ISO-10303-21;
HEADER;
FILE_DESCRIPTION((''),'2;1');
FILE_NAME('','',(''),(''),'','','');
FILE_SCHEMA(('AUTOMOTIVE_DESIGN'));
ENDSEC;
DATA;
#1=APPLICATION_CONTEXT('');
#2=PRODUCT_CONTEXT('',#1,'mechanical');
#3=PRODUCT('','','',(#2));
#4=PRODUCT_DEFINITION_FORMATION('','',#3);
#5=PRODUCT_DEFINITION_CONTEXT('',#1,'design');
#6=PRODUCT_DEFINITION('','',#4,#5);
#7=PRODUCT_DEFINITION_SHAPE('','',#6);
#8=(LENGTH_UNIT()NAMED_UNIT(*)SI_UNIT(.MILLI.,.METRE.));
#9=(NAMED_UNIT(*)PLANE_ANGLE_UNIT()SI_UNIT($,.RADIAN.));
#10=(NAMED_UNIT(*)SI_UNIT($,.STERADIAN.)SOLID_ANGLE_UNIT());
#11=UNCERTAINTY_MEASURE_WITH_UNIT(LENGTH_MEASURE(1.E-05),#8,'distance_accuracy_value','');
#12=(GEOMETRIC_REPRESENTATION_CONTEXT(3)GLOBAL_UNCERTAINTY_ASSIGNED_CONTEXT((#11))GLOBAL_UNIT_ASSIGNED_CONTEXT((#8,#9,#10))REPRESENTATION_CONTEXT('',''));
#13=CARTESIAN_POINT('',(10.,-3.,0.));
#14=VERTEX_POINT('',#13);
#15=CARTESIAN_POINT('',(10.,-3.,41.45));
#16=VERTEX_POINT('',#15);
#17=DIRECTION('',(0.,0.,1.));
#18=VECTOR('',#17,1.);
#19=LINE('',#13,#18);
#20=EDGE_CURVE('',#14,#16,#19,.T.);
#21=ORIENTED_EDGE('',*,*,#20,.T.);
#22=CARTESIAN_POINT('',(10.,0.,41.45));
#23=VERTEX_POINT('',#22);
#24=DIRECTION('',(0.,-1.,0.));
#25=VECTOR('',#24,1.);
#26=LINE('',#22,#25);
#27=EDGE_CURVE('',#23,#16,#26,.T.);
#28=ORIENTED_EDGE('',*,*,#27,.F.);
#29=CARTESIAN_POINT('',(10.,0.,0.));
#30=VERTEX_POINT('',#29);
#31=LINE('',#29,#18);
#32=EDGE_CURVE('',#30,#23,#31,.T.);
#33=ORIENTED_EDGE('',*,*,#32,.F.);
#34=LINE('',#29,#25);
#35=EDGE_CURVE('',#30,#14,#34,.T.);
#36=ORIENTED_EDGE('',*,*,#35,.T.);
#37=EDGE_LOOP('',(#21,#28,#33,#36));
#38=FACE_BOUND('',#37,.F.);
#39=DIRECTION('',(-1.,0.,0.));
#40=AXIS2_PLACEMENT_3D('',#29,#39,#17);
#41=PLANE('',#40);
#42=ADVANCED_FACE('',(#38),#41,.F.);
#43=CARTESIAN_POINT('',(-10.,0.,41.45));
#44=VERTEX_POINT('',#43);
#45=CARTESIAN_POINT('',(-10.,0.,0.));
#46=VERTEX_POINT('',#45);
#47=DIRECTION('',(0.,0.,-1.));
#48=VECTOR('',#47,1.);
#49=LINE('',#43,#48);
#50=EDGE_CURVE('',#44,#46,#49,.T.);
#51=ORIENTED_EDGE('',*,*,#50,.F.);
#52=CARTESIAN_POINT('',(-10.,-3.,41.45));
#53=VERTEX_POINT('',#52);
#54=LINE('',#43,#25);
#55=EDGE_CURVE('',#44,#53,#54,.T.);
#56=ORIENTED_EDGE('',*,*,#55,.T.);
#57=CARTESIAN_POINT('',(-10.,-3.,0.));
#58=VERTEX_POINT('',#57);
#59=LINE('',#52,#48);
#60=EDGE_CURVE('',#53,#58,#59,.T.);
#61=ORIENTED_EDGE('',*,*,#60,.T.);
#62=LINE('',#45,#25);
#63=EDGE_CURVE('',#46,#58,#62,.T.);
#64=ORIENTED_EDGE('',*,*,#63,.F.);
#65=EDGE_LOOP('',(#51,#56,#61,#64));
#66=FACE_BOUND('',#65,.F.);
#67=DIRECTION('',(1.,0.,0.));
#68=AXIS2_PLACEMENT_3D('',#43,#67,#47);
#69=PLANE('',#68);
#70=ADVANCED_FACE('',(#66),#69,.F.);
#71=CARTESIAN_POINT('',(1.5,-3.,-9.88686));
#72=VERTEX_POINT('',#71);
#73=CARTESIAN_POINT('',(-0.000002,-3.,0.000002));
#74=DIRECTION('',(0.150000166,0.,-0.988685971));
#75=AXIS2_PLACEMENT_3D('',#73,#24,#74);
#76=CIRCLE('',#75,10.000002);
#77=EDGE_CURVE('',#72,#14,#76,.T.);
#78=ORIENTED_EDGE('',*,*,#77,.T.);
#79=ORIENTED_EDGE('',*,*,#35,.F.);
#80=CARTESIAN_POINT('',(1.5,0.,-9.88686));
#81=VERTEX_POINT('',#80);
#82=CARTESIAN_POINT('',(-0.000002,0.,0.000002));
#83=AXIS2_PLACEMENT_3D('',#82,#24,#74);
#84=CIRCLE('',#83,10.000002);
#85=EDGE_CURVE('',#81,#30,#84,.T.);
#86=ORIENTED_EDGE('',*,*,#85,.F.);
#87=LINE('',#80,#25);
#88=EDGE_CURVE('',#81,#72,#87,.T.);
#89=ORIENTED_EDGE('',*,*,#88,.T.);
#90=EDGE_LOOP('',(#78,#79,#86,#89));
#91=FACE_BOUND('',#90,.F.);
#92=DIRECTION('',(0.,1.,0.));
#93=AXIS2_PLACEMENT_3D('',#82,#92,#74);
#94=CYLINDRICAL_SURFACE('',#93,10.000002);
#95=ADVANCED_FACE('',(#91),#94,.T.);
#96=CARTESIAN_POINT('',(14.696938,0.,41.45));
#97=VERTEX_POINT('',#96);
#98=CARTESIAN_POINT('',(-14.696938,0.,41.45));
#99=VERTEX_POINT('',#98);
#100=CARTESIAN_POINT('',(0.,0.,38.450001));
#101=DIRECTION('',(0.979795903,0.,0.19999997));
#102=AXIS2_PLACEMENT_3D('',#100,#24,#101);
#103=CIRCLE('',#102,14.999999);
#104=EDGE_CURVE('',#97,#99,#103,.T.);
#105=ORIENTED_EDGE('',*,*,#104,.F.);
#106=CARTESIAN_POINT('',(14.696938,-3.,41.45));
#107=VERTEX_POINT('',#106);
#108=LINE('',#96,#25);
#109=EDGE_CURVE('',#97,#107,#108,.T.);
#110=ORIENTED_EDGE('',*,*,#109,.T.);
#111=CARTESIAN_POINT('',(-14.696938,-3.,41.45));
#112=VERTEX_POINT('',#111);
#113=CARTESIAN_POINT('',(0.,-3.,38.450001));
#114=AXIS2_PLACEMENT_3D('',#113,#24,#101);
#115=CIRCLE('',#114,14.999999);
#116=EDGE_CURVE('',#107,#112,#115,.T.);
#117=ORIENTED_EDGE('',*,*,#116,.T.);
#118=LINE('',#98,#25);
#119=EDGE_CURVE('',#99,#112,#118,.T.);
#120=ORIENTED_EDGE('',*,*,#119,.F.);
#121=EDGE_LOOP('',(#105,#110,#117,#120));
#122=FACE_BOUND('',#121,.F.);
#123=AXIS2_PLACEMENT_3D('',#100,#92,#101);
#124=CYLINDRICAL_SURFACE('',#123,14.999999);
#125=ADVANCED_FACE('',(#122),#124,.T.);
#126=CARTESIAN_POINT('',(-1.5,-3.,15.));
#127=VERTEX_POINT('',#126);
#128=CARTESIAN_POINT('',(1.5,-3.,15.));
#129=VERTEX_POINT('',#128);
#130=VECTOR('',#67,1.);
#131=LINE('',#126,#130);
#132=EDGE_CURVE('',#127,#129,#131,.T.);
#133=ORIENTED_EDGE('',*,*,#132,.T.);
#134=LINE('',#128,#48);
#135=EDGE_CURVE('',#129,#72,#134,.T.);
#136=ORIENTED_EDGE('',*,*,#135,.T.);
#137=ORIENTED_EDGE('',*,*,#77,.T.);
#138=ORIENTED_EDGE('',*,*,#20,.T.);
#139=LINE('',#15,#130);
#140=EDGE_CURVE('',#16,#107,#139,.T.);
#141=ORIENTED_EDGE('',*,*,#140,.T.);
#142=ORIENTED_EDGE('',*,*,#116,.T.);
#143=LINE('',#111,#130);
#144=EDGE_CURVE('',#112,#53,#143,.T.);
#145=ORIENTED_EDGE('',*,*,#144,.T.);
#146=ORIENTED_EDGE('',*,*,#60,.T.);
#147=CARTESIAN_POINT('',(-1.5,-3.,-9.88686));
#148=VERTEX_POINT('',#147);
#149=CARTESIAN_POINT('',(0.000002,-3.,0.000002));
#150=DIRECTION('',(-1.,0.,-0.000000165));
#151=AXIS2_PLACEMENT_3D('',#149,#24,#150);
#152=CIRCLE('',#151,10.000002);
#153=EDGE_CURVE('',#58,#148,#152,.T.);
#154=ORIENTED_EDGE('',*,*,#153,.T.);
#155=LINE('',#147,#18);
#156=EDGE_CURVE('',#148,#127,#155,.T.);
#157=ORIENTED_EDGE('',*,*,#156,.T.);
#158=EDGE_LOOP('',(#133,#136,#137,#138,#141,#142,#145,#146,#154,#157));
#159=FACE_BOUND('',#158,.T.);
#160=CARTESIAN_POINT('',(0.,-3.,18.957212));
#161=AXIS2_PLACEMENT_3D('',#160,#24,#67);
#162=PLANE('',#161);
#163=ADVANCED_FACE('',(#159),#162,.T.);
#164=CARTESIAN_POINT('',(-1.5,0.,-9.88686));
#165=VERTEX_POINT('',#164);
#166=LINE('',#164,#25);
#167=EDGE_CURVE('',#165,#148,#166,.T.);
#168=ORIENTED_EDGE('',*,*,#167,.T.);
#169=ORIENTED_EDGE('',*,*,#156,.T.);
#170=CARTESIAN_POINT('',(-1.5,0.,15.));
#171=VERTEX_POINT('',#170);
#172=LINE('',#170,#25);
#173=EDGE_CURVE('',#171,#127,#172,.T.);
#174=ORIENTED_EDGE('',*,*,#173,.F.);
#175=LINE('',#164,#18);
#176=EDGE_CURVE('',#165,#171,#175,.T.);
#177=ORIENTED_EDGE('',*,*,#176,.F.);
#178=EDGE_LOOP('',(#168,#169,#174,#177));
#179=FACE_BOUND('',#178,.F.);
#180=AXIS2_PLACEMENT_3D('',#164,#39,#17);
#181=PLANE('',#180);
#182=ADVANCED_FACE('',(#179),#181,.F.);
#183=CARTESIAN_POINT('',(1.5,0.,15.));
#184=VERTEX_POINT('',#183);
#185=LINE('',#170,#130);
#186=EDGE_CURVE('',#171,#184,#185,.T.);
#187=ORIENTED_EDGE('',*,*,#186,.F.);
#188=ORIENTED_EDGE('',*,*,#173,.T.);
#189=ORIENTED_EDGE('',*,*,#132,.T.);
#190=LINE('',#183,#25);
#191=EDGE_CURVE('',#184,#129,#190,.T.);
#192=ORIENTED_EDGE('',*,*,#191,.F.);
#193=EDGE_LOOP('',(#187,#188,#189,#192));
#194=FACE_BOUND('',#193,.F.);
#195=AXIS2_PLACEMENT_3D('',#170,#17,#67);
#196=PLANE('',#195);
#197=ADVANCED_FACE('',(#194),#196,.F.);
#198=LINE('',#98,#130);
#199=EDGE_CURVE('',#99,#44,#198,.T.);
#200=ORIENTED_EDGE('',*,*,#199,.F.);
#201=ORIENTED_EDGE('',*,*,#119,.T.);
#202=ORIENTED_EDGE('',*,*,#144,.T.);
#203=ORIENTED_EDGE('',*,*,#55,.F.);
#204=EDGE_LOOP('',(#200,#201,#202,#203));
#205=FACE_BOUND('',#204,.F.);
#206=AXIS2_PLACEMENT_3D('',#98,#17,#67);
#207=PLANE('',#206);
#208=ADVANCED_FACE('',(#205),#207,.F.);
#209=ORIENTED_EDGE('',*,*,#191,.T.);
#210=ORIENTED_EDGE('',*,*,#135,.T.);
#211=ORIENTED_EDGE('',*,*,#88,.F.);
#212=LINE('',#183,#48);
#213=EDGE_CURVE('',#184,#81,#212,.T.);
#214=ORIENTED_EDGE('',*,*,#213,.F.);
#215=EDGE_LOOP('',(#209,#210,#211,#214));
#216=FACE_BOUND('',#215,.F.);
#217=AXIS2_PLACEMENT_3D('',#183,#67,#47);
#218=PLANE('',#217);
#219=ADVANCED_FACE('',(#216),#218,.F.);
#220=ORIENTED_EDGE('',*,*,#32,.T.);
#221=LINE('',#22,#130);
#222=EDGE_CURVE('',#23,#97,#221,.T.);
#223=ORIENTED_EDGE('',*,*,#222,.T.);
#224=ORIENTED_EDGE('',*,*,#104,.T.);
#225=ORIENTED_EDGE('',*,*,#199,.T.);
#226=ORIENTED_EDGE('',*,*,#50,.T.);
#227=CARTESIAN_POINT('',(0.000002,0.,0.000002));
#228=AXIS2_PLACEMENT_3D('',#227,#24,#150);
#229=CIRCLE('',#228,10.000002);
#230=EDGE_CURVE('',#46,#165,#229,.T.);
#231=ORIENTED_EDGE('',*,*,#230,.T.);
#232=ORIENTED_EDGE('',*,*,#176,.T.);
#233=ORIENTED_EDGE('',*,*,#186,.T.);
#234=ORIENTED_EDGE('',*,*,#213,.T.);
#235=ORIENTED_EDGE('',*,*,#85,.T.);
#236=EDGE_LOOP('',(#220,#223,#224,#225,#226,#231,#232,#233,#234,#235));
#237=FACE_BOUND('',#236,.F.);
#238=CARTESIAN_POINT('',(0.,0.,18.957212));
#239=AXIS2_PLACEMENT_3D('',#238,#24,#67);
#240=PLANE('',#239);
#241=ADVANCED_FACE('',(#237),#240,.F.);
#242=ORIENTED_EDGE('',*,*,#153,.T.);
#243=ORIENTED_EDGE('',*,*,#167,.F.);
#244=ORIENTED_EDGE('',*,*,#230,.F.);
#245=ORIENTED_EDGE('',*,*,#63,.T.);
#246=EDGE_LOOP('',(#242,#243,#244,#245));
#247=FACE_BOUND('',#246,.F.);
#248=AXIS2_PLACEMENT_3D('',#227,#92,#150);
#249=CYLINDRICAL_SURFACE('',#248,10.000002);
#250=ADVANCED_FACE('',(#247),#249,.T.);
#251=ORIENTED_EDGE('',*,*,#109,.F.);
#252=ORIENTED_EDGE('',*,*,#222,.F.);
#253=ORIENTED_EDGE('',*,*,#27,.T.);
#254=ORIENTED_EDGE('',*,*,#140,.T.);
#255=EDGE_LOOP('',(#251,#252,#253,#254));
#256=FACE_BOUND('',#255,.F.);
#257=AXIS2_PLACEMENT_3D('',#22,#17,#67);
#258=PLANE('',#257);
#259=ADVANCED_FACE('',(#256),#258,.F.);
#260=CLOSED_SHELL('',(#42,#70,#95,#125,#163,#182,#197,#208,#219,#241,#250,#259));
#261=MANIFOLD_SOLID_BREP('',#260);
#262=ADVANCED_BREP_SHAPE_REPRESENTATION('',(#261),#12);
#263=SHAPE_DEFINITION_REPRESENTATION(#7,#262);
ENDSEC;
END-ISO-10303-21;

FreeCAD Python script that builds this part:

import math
import FreeCAD as App
import Part
import Sketcher

doc = App.newDocument("Part")
body = doc.addObject("PartDesign::Body", "Body")

sketch1 = body.newObject("Sketcher::SketchObject", "Sketch")
sketch1.AttachmentSupport = (doc.getObject("XZ_Plane"), [""])
sketch1.MapMode = "FlatFace"
sketch1.addGeometry([
    Part.LineSegment(App.Vector(-14.7, 41.5, 0), App.Vector(-10, 41.5, 0)),
    Part.LineSegment(App.Vector(-10, 41.5, 0), App.Vector(-10, 0, 0)),
    Part.ArcOfCircle(Part.Circle(App.Vector(0, 0, 0), App.Vector(0, 0, 1), 10), math.radians(-180), math.radians(-99)),
    Part.LineSegment(App.Vector(-1.5, -9.9, 0), App.Vector(-1.5, 15, 0)),
    Part.LineSegment(App.Vector(-1.5, 15, 0), App.Vector(1.5, 15, 0)),
    Part.LineSegment(App.Vector(1.5, 15, 0), App.Vector(1.5, -9.9, 0)),
    Part.ArcOfCircle(Part.Circle(App.Vector(0, 0, 0), App.Vector(0, 0, 1), 10), math.radians(-81), math.radians(0)),
    Part.LineSegment(App.Vector(10, 0, 0), App.Vector(10, 41.5, 0)),
    Part.LineSegment(App.Vector(10, 41.5, 0), App.Vector(14.7, 41.5, 0)),
    Part.ArcOfCircle(Part.Circle(App.Vector(0, 38.5, 0), App.Vector(0, 0, 1), 15), math.radians(12), math.radians(168)),
], False)
sketch1.addConstraint([
    Sketcher.Constraint("Coincident", 0, 2, 1, 1),
    Sketcher.Constraint("Tangent", 1, 2, 2, 1),
    Sketcher.Constraint("Coincident", 2, 2, 3, 1),
    Sketcher.Constraint("Coincident", 3, 2, 4, 1),
    Sketcher.Constraint("Coincident", 4, 2, 5, 1),
    Sketcher.Constraint("Coincident", 5, 2, 6, 1),
    Sketcher.Constraint("Tangent", 6, 2, 7, 1),
    Sketcher.Constraint("Coincident", 7, 2, 8, 1),
    Sketcher.Constraint("Coincident", 8, 2, 9, 1),
    Sketcher.Constraint("Coincident", 9, 2, 0, 1),
    Sketcher.Constraint("Horizontal", 0),
    Sketcher.Constraint("Vertical", 1),
    Sketcher.Constraint("Vertical", 3),
    Sketcher.Constraint("Horizontal", 4),
    Sketcher.Constraint("Vertical", 5),
    Sketcher.Constraint("Vertical", 7),
    Sketcher.Constraint("Horizontal", 8),
    Sketcher.Constraint("Coincident", 2, 3, -1, 1),
    Sketcher.Constraint("Coincident", 6, 3, -1, 1),
    Sketcher.Constraint("Equal", 2, 6),
    Sketcher.Constraint("Symmetric", 8, 2, 9, 2, -2),
    Sketcher.Constraint("Horizontal", 2, 2, 5, 2),
    Sketcher.Constraint("Radius", 2, 10.000002),
    Sketcher.Constraint("Radius", 9, 14.999999),
    Sketcher.Constraint("DistanceX", 4, 1, 4, 2, 3.0),
    Sketcher.Constraint("DistanceY", -1, 1, 3, 2, 15.0),
    Sketcher.Constraint("DistanceY", 9, 3, 0, 2, 2.999999),
    Sketcher.Constraint("DistanceY", 1, 2, 1, 1, 41.45),
])
pad1 = body.newObject("PartDesign::Pad", "Pad")
pad1.Profile = sketch1
pad1.Length = 3

doc.recompute()
